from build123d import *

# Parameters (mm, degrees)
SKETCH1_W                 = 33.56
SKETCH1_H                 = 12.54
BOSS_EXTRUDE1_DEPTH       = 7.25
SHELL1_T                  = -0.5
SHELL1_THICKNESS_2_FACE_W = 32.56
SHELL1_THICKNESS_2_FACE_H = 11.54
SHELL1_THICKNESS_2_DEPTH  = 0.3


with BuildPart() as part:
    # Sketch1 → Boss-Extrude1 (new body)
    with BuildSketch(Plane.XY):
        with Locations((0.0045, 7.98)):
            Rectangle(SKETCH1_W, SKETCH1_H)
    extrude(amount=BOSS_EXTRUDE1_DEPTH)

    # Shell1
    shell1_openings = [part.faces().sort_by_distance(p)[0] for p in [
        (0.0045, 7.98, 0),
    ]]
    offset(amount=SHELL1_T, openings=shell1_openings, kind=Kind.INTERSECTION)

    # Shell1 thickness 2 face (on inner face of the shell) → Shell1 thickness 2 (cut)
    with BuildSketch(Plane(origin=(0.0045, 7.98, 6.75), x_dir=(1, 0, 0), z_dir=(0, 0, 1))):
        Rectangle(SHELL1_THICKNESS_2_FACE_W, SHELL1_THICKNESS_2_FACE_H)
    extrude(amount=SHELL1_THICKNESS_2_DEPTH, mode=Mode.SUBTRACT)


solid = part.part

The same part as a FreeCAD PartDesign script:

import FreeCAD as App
import Part
import Sketcher
Q = App.Units.Quantity


def faces_at(feature, points):
    """Names of the faces that lie closest to the given points."""
    faces = feature.Shape.Faces
    near = lambda p: min(range(len(faces)), key=lambda i: faces[i].distToShape(Part.Vertex(*p))[0])
    return sorted({f"Face{near(p) + 1}" for p in points})


def add_polygon(sketch, points):
    """Adds a closed chain of lines whose ends are joined by coincident constraints."""
    first, n = sketch.GeometryCount, len(points)
    for a, b in zip(points, points[1:] + points[:1]):
        sketch.addGeometry(Part.LineSegment(App.Vector(*a, 0), App.Vector(*b, 0)), False)
    for i in range(n):
        sketch.addConstraint(Sketcher.Constraint("Coincident", first + i, 2, first + (i + 1) % n, 1))

doc = App.newDocument("Part")
body = doc.addObject("PartDesign::Body", "Body")

# Sketch on XY plane
sketch1 = body.newObject("Sketcher::SketchObject", "Sketch")
sketch1.AttachmentSupport = (doc.getObject("XY_Plane"), [""])
sketch1.MapMode = "FlatFace"
add_polygon(sketch1, [(-17, 14), (-17, 2), (17, 2), (17, 14)])  # lines 0-3
sketch1.addConstraint(Sketcher.Constraint("Vertical", 0))
sketch1.addConstraint(Sketcher.Constraint("Horizontal", 1))
sketch1.addConstraint(Sketcher.Constraint("Vertical", 2))
sketch1.addConstraint(Sketcher.Constraint("Horizontal", 3))
sketch1.addConstraint(Sketcher.Constraint("DistanceX", 1, 1, 1, 2, Q("33.56 mm")))
sketch1.addConstraint(Sketcher.Constraint("DistanceY", 0, 2, 0, 1, Q("12.54 mm")))
sketch1.addConstraint(Sketcher.Constraint("DistanceY", -1, 1, 0, 2, Q("1.71 mm")))
sketch1.addConstraint(Sketcher.Constraint("DistanceX", 0, 2, -1, 1, Q("16.7755 mm")))
pad1 = body.newObject("PartDesign::Pad", "Pad")
pad1.Profile = sketch1
pad1.Length = 7.25
doc.recompute()

thickness = body.newObject("PartDesign::Thickness", "Thickness")
thickness.Base = (pad1, faces_at(pad1, [(0.004, 7.98, 0)]))
thickness.Value = 0.5
thickness.Reversed = True
thickness.Join = "Intersection"

# Sketch on XY plane
sketch2 = body.newObject("Sketcher::SketchObject", "Sketch001")
sketch2.AttachmentSupport = (doc.getObject("XY_Plane"), [""])
sketch2.MapMode = "FlatFace"
sketch2.AttachmentOffset = App.Placement(App.Vector(0, 0, 6.75), App.Rotation())
add_polygon(sketch2, [(-16, 14), (-16, 2), (16, 2), (16, 14)])  # lines 0-3
sketch2.addConstraint(Sketcher.Constraint("Vertical", 0))
sketch2.addConstraint(Sketcher.Constraint("Horizontal", 1))
sketch2.addConstraint(Sketcher.Constraint("Vertical", 2))
sketch2.addConstraint(Sketcher.Constraint("Horizontal", 3))
sketch2.addConstraint(Sketcher.Constraint("DistanceX", 1, 1, 1, 2, Q("32.56 mm")))
sketch2.addConstraint(Sketcher.Constraint("DistanceY", 0, 2, 0, 1, Q("11.54 mm")))
sketch2.addConstraint(Sketcher.Constraint("DistanceY", -1, 1, 0, 2, Q("2.21 mm")))
sketch2.addConstraint(Sketcher.Constraint("DistanceX", 0, 2, -1, 1, Q("16.2755 mm")))
pocket1 = body.newObject("PartDesign::Pocket", "Pocket")
pocket1.Profile = sketch2
pocket1.Length = 0.3
pocket1.Reversed = True

doc.recompute()
